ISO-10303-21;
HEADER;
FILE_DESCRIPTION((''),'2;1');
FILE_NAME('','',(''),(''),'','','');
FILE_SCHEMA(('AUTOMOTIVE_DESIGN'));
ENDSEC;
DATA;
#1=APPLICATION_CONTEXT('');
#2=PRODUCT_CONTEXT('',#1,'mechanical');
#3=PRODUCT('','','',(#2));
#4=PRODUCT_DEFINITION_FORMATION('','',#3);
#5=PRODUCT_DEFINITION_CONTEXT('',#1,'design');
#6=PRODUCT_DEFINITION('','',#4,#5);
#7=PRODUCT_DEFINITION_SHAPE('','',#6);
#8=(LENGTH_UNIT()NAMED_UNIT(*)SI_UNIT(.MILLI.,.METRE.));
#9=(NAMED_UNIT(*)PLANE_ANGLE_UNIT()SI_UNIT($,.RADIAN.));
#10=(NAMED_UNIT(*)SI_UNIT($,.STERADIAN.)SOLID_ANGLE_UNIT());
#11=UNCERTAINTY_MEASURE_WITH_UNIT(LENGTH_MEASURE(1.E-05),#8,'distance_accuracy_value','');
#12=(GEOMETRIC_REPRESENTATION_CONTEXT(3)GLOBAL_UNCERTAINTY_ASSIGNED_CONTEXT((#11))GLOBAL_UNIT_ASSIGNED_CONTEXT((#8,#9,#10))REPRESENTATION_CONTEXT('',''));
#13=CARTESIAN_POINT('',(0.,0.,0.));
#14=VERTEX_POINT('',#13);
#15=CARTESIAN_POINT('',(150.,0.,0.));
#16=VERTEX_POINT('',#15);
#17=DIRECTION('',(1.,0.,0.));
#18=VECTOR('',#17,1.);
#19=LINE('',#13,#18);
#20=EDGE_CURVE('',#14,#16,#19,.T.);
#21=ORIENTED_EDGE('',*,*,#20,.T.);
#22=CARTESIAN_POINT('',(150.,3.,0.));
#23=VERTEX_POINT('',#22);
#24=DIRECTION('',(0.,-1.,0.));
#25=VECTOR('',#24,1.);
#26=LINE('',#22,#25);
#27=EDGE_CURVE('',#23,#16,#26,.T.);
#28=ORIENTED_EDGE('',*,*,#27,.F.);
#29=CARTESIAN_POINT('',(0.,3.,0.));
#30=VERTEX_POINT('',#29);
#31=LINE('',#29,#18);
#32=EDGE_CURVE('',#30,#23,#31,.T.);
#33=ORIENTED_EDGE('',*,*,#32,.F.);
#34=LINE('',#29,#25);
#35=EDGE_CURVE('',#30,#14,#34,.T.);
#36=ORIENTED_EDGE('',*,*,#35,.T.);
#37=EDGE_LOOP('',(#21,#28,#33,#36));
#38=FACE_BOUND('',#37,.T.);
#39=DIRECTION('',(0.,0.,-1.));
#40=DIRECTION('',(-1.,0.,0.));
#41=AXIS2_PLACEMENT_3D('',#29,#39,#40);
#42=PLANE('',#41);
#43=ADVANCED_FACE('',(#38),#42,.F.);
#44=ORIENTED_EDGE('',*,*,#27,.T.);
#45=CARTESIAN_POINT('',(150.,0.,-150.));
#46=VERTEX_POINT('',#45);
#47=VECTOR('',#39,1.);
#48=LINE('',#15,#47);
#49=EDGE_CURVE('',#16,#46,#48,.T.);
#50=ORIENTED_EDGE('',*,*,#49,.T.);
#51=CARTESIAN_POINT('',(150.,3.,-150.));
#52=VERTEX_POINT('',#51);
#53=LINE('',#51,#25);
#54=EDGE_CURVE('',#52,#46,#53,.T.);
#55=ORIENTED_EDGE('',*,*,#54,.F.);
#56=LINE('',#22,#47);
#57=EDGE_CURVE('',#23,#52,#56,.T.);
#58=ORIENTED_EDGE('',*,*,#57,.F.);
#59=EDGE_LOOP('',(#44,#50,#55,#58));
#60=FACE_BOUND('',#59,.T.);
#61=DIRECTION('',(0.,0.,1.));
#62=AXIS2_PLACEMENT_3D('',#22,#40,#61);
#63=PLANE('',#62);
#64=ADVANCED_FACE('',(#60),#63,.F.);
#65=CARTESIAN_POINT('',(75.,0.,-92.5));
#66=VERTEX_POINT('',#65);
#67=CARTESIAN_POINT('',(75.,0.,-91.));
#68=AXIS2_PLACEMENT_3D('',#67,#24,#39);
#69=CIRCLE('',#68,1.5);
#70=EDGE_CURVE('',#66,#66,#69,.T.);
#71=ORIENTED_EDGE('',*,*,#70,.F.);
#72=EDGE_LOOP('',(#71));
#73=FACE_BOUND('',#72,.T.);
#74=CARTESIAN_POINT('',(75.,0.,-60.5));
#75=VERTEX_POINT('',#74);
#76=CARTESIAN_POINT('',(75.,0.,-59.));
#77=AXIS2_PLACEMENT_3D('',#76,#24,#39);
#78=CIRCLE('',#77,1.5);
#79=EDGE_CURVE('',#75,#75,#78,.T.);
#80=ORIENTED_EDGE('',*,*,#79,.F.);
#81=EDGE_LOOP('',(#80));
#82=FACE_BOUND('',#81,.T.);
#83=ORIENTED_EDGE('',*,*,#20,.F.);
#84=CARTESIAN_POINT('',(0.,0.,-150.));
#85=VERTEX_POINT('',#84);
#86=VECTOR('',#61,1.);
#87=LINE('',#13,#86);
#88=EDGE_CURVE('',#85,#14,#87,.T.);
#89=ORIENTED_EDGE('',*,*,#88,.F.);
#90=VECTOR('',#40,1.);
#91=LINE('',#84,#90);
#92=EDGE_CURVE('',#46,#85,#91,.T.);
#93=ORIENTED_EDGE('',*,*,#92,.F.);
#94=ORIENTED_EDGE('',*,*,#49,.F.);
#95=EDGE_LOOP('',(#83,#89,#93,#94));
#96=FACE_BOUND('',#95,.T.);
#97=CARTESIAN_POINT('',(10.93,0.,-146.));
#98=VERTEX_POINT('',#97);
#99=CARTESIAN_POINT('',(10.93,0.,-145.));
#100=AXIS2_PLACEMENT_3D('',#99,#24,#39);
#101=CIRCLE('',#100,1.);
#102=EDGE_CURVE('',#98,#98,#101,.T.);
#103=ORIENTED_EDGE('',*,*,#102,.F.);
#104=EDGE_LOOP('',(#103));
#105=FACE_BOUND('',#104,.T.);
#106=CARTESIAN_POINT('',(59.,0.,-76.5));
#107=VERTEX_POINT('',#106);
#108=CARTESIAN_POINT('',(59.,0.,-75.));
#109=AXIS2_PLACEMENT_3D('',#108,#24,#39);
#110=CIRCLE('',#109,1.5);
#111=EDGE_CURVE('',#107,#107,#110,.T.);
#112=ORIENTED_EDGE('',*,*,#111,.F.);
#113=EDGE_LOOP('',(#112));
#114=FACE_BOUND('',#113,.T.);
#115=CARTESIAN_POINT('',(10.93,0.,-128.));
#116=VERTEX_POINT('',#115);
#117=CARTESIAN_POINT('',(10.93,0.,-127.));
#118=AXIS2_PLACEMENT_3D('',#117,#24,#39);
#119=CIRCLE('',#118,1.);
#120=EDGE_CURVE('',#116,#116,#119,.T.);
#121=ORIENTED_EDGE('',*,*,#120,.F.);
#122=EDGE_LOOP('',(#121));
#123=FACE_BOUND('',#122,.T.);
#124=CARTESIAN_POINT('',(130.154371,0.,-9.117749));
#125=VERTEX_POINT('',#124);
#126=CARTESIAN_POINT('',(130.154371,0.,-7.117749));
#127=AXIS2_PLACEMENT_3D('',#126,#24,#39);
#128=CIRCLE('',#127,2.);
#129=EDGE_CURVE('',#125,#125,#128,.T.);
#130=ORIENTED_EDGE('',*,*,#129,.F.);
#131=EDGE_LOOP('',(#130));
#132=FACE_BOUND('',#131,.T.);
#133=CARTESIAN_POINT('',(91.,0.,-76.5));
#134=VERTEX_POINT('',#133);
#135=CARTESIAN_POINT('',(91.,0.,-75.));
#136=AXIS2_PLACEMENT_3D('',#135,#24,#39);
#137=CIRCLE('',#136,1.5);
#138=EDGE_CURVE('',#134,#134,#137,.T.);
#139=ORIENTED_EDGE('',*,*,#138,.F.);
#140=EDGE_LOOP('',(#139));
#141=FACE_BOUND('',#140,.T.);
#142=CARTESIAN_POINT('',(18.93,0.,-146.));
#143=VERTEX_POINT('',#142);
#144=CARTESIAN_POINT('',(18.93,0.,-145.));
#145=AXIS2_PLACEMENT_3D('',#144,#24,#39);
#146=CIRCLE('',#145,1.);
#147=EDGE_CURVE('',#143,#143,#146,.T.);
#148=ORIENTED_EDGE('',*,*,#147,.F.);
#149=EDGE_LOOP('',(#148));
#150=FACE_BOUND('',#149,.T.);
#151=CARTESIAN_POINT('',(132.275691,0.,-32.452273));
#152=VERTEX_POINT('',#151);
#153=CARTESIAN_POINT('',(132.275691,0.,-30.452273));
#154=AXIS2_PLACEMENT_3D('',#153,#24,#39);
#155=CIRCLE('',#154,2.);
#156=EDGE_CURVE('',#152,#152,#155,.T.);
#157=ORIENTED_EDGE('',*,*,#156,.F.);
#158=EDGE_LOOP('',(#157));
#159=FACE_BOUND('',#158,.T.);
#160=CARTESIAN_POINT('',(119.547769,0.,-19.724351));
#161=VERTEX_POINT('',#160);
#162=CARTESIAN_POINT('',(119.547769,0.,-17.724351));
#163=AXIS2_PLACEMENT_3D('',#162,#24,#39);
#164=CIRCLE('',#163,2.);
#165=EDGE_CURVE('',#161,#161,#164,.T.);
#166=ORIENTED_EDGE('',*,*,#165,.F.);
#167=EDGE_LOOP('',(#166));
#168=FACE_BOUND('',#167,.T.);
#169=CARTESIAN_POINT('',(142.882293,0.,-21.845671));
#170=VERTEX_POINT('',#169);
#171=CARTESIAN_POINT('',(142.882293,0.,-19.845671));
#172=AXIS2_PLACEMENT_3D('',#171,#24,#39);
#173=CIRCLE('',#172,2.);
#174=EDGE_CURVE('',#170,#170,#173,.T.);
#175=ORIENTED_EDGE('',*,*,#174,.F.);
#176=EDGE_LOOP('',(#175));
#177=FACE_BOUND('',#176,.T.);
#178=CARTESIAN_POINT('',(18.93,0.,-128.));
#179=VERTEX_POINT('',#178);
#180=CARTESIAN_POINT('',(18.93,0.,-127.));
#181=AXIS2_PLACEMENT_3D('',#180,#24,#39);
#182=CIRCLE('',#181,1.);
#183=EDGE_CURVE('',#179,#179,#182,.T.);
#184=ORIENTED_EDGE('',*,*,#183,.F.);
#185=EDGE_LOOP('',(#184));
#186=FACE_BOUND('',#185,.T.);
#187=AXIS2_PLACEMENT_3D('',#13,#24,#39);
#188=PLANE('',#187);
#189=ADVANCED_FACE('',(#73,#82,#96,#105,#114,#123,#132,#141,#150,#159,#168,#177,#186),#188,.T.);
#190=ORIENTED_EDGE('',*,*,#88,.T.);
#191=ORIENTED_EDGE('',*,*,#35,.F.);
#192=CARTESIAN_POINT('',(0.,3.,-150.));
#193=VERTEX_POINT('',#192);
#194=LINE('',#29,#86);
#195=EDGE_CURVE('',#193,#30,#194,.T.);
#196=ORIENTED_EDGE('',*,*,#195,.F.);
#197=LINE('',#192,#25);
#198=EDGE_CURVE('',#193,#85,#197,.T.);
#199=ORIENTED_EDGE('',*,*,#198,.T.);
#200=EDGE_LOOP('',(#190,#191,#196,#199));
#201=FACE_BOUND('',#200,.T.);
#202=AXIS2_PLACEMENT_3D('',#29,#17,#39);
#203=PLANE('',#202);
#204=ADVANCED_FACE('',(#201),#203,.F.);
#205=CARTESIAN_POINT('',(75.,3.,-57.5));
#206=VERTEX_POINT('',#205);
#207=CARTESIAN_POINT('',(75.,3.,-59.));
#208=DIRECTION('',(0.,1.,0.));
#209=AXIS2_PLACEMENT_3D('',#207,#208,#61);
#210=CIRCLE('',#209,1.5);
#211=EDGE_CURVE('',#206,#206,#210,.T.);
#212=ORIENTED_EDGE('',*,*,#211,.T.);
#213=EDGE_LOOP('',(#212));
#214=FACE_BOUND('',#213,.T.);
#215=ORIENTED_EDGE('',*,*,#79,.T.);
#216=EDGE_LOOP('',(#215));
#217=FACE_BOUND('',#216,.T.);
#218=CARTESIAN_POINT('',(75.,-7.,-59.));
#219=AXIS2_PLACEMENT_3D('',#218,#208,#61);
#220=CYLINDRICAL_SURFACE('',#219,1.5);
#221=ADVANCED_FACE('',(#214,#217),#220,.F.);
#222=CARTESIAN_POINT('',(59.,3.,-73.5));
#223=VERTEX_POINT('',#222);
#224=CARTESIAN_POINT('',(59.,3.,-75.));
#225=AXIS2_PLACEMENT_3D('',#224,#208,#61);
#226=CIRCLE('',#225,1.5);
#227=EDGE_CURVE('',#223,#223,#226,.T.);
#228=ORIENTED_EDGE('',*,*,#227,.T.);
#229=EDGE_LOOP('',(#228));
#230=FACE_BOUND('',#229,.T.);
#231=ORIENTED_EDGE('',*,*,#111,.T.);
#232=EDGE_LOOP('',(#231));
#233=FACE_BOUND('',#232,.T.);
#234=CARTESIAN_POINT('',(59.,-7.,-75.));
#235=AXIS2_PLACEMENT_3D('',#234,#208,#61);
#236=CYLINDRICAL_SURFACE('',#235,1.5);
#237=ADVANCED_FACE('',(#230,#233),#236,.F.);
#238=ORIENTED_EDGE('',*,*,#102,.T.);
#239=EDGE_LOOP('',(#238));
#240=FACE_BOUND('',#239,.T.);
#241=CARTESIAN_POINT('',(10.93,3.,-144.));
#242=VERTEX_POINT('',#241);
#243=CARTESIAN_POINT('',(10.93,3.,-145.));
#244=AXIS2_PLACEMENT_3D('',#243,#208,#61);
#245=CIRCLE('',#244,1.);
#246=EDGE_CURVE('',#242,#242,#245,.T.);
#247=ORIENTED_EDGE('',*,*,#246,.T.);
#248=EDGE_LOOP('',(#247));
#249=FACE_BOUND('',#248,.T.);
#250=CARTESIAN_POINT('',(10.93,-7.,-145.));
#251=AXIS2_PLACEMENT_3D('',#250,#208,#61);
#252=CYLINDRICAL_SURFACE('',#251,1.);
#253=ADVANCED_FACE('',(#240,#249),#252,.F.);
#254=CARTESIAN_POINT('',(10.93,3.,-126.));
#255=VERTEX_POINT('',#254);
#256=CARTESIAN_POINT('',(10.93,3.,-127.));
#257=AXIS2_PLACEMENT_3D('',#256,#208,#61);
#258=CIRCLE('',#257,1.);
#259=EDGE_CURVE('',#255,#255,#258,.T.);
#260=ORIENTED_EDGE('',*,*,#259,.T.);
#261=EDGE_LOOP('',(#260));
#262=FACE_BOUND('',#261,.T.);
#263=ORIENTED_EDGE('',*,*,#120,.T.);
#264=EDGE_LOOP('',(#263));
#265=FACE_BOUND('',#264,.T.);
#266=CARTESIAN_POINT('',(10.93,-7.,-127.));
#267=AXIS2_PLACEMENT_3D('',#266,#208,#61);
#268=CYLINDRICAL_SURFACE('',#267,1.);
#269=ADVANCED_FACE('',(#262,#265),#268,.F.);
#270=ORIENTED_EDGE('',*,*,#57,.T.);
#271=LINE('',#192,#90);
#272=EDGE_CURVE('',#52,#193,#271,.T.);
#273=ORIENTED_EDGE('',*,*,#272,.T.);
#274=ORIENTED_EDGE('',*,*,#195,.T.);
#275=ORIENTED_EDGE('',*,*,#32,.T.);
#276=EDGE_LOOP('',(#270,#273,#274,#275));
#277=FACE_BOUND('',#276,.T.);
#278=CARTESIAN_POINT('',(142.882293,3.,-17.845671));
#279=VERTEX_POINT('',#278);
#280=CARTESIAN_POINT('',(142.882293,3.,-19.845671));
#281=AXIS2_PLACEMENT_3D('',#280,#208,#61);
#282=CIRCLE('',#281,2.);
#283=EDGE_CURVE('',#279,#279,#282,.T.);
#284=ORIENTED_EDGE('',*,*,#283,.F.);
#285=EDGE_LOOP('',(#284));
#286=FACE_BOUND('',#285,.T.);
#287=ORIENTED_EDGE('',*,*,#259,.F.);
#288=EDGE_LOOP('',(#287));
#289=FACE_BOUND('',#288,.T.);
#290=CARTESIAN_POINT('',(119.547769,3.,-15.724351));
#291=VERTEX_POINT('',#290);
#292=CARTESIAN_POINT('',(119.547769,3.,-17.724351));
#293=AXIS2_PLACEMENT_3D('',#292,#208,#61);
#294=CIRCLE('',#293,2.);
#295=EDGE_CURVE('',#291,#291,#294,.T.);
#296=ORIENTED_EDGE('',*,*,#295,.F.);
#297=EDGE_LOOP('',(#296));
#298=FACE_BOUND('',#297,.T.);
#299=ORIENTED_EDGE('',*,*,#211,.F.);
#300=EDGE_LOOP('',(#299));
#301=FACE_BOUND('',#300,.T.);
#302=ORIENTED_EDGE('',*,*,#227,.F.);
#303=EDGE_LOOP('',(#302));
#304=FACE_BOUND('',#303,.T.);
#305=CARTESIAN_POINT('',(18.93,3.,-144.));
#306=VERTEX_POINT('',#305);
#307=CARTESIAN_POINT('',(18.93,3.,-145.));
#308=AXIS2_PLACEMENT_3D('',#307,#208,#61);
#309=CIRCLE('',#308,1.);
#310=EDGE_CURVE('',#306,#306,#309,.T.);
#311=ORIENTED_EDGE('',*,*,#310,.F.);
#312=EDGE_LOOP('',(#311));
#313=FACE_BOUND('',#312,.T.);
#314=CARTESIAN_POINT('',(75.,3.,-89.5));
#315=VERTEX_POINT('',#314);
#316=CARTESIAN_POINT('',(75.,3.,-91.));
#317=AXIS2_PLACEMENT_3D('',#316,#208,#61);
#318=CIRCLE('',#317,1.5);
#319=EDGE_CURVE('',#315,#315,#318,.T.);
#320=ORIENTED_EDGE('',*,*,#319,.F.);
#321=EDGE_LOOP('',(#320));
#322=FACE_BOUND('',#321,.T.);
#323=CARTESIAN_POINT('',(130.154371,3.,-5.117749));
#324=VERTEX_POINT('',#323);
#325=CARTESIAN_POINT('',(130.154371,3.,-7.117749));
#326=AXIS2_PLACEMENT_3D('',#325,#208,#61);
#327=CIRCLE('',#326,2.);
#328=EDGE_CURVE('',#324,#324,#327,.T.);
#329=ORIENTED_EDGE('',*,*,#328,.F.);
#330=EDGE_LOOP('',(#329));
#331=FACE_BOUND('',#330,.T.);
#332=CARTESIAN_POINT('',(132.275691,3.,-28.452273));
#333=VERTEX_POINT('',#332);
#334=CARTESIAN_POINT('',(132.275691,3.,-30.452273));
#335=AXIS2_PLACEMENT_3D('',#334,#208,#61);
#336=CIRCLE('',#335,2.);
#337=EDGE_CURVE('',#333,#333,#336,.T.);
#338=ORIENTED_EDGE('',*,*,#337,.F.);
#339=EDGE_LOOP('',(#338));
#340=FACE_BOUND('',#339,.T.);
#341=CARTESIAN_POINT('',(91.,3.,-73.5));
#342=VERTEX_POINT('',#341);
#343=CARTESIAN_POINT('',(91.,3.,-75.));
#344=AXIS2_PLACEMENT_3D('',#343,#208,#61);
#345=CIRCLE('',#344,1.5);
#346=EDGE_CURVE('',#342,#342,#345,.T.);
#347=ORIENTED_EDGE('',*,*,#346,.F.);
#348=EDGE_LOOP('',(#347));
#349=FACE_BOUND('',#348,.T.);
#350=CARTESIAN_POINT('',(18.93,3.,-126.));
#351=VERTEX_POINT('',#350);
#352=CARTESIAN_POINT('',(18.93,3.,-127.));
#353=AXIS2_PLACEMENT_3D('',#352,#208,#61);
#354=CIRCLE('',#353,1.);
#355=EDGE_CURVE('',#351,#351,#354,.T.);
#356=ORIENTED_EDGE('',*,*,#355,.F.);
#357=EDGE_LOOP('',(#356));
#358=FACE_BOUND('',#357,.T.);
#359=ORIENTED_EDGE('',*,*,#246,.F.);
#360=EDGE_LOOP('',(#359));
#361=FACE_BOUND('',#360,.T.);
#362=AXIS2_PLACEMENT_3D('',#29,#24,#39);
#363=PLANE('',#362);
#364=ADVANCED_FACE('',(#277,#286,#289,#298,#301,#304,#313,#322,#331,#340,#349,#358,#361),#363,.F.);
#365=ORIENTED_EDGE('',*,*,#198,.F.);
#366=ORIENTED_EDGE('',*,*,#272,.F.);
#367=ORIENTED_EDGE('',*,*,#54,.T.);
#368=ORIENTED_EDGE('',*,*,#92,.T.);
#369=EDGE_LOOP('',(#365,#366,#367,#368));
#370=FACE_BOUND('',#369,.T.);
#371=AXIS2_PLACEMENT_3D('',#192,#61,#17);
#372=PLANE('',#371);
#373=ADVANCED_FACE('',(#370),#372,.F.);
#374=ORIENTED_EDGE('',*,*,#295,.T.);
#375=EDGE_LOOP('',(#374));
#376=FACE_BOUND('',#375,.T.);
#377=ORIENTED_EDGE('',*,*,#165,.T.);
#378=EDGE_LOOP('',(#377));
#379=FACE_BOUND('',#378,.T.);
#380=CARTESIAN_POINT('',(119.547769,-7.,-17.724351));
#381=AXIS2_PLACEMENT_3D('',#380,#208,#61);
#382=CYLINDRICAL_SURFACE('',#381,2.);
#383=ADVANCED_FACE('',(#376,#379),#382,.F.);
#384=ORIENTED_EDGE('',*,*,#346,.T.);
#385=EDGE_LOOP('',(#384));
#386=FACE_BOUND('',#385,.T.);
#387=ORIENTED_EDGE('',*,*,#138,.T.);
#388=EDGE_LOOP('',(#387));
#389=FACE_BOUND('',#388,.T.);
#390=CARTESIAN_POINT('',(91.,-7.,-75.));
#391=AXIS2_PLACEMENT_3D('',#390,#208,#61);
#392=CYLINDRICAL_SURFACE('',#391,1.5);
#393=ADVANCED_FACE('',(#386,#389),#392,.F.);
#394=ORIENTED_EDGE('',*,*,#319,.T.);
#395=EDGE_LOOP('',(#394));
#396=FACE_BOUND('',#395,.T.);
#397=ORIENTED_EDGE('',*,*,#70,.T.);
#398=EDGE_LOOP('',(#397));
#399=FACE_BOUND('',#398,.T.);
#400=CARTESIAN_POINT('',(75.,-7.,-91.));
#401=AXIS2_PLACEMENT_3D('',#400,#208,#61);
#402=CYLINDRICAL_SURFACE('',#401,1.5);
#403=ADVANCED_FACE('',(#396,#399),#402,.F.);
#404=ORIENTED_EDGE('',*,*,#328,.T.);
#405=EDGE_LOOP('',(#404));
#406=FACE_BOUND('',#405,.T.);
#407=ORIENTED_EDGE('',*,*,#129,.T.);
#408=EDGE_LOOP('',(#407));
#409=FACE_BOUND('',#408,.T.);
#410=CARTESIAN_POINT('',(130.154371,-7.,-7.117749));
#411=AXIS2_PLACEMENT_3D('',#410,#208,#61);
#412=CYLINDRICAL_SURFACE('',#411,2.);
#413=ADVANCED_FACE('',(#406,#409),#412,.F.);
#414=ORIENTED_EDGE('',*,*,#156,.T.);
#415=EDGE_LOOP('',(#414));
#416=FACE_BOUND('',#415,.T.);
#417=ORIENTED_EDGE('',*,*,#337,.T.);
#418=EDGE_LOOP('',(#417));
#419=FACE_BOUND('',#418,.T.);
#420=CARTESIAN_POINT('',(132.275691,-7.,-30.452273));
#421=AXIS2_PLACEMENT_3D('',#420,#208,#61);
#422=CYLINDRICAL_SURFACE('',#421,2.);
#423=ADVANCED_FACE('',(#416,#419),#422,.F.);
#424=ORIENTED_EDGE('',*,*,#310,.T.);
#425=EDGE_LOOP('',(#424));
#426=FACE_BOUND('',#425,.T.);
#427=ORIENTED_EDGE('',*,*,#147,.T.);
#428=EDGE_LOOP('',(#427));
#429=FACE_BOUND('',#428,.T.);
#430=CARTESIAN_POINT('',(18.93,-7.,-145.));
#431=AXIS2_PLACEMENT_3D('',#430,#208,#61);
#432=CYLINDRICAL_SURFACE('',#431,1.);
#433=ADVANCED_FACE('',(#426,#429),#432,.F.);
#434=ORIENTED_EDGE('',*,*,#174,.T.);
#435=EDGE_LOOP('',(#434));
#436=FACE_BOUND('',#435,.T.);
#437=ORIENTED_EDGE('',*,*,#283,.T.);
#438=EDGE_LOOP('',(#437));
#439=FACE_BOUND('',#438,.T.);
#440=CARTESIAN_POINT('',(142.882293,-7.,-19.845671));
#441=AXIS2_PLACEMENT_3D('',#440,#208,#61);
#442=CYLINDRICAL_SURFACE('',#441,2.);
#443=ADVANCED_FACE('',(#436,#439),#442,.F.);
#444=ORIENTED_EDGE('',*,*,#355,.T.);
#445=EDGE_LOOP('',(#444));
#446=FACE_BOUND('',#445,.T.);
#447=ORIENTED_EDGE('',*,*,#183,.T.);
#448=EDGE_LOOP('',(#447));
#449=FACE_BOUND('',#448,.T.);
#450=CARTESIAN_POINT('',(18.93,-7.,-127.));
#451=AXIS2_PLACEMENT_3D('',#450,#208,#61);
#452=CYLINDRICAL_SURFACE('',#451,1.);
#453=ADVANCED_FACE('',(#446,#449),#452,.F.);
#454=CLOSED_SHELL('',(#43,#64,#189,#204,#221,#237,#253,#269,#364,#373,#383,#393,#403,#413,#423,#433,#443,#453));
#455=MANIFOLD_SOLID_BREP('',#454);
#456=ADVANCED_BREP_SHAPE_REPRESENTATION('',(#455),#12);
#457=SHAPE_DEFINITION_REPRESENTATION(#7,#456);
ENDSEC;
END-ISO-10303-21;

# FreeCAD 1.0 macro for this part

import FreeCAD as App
import Part
import Sketcher

doc = App.newDocument("Part")
body = doc.addObject("PartDesign::Body", "Body")

sketch1 = body.newObject("Sketcher::SketchObject", "Sketch")
sketch1.AttachmentSupport = (doc.getObject("XZ_Plane"), [""])
sketch1.MapMode = "FlatFace"
sketch1.addGeometry([
    Part.LineSegment(App.Vector(0, -150, 0), App.Vector(0, 0, 0)),
    Part.LineSegment(App.Vector(0, 0, 0), App.Vector(150, 0, 0)),
    Part.LineSegment(App.Vector(150, 0, 0), App.Vector(150, -150, 0)),
    Part.LineSegment(App.Vector(150, -150, 0), App.Vector(0, -150, 0)),
], False)
sketch1.addConstraint([
    Sketcher.Constraint("Coincident", 0, 2, 1, 1),
    Sketcher.Constraint("Coincident", 1, 2, 2, 1),
    Sketcher.Constraint("Coincident", 2, 2, 3, 1),
    Sketcher.Constraint("Coincident", 3, 2, 0, 1),
    Sketcher.Constraint("Vertical", 0),
    Sketcher.Constraint("Horizontal", 1),
    Sketcher.Constraint("Vertical", 2),
    Sketcher.Constraint("Horizontal", 3),
    Sketcher.Constraint("Coincident", 0, 2, -1, 1),
    Sketcher.Constraint("Equal", 3, 0),
    Sketcher.Constraint("DistanceX", 1, 1, 1, 2, 150.0),
])
pad1 = body.newObject("PartDesign::Pad", "Pad")
pad1.Profile = sketch1
pad1.Length = 3
pad1.Reversed = True

sketch2 = body.newObject("Sketcher::SketchObject", "Sketch001")
sketch2.AttachmentSupport = (doc.getObject("XZ_Plane"), [""])
sketch2.MapMode = "FlatFace"
sketch2.AttachmentOffset = App.Placement(App.Vector(0, 0, -3), App.Rotation())
sketch2.addGeometry([
    Part.Circle(App.Vector(75, -59, 0), App.Vector(0, 0, 1), 1.5),
    Part.Circle(App.Vector(59, -75, 0), App.Vector(0, 0, 1), 1.5),
    Part.Circle(App.Vector(75, -91, 0), App.Vector(0, 0, 1), 1.5),
    Part.Circle(App.Vector(91, -75, 0), App.Vector(0, 0, 1), 1.5),
    Part.Circle(App.Vector(18.9, -145, 0), App.Vector(0, 0, 1), 1),
    Part.Circle(App.Vector(10.9, -145, 0), App.Vector(0, 0, 1), 1),
    Part.Circle(App.Vector(18.9, -127, 0), App.Vector(0, 0, 1), 1),
    Part.Circle(App.Vector(10.9, -127, 0), App.Vector(0, 0, 1), 1),
], False)
sketch2.addConstraint([
    Sketcher.Constraint("Equal", 0, 1),
    Sketcher.Constraint("Equal", 1, 2),
    Sketcher.Constraint("Equal", 2, 3),
    Sketcher.Constraint("Equal", 4, 5),
    Sketcher.Constraint("Equal", 5, 6),
    Sketcher.Constraint("Equal", 6, 7),
    Sketcher.Constraint("Horizontal", 1, 3, 3, 3),
    Sketcher.Constraint("Horizontal", 4, 3, 5, 3),
    Sketcher.Constraint("Horizontal", 6, 3, 7, 3),
    Sketcher.Constraint("Vertical", 0, 3, 2, 3),
    Sketcher.Constraint("Vertical", 4, 3, 6, 3),
    Sketcher.Constraint("Vertical", 5, 3, 7, 3),
    Sketcher.Constraint("Diameter", 0, 3.0),
    Sketcher.Constraint("Diameter", 4, 2.0),
    Sketcher.Constraint("DistanceX", -1, 1, 0, 3, 75.0),
    Sketcher.Constraint("DistanceY", 0, 3, -1, 1, 59.0),
    Sketcher.Constraint("DistanceX", -1, 1, 1, 3, 59.0),
    Sketcher.Constraint("DistanceY", 1, 3, -1, 1, 75.0),
    Sketcher.Constraint("DistanceY", 2, 3, -1, 1, 91.0),
    Sketcher.Constraint("DistanceX", -1, 1, 3, 3, 91.0),
    Sketcher.Constraint("DistanceY", 4, 3, -1, 1, 145.0),
    Sketcher.Constraint("DistanceY", 6, 3, -1, 1, 127.0),
    Sketcher.Constraint("DistanceX", 5, 3, 4, 3, 8.0),
    Sketcher.Constraint("DistanceX", -1, 1, 4, 3, 18.93),
])
pocket1 = body.newObject("PartDesign::Pocket", "Pocket")
pocket1.Profile = sketch2
pocket1.Length = 10
pocket1.Reversed = True

sketch3 = body.newObject("Sketcher::SketchObject", "Sketch002")
sketch3.AttachmentSupport = (doc.getObject("XZ_Plane"), [""])
sketch3.MapMode = "FlatFace"
sketch3.AttachmentOffset = App.Placement(App.Vector(0, 0, -3), App.Rotation())
sketch3.addGeometry([
    Part.Circle(App.Vector(132.3, -30.5, 0), App.Vector(0, 0, 1), 2),
    Part.Circle(App.Vector(119.5, -17.7, 0), App.Vector(0, 0, 1), 2),
    Part.Circle(App.Vector(130.2, -7.1, 0), App.Vector(0, 0, 1), 2),
    Part.Circle(App.Vector(142.9, -19.8, 0), App.Vector(0, 0, 1), 2),
], False)
sketch3.addConstraint([
    Sketcher.Constraint("Equal", 0, 1),
    Sketcher.Constraint("Equal", 1, 2),
    Sketcher.Constraint("Equal", 2, 3),
    Sketcher.Constraint("Diameter", 0, 4.0),
    Sketcher.Constraint("DistanceX", 1, 3, 2, 3, 10.606602),
    Sketcher.Constraint("DistanceY", 1, 3, 2, 3, 10.606602),
    Sketcher.Constraint("DistanceX", 0, 3, 3, 3, 10.606602),
    Sketcher.Constraint("DistanceY", 0, 3, 3, 3, 10.606602),
    Sketcher.Constraint("DistanceX", -1, 1, 0, 3, 132.275691),
    Sketcher.Constraint("DistanceX", -1, 1, 1, 3, 119.547769),
    Sketcher.Constraint("DistanceY", 1, 3, -1, 1, 17.724351),
    Sketcher.Constraint("DistanceY", 3, 3, -1, 1, 19.845671),
])
pocket2 = body.newObject("PartDesign::Pocket", "Pocket001")
pocket2.Profile = sketch3
pocket2.Length = 10
pocket2.Reversed = True

doc.recompute()
